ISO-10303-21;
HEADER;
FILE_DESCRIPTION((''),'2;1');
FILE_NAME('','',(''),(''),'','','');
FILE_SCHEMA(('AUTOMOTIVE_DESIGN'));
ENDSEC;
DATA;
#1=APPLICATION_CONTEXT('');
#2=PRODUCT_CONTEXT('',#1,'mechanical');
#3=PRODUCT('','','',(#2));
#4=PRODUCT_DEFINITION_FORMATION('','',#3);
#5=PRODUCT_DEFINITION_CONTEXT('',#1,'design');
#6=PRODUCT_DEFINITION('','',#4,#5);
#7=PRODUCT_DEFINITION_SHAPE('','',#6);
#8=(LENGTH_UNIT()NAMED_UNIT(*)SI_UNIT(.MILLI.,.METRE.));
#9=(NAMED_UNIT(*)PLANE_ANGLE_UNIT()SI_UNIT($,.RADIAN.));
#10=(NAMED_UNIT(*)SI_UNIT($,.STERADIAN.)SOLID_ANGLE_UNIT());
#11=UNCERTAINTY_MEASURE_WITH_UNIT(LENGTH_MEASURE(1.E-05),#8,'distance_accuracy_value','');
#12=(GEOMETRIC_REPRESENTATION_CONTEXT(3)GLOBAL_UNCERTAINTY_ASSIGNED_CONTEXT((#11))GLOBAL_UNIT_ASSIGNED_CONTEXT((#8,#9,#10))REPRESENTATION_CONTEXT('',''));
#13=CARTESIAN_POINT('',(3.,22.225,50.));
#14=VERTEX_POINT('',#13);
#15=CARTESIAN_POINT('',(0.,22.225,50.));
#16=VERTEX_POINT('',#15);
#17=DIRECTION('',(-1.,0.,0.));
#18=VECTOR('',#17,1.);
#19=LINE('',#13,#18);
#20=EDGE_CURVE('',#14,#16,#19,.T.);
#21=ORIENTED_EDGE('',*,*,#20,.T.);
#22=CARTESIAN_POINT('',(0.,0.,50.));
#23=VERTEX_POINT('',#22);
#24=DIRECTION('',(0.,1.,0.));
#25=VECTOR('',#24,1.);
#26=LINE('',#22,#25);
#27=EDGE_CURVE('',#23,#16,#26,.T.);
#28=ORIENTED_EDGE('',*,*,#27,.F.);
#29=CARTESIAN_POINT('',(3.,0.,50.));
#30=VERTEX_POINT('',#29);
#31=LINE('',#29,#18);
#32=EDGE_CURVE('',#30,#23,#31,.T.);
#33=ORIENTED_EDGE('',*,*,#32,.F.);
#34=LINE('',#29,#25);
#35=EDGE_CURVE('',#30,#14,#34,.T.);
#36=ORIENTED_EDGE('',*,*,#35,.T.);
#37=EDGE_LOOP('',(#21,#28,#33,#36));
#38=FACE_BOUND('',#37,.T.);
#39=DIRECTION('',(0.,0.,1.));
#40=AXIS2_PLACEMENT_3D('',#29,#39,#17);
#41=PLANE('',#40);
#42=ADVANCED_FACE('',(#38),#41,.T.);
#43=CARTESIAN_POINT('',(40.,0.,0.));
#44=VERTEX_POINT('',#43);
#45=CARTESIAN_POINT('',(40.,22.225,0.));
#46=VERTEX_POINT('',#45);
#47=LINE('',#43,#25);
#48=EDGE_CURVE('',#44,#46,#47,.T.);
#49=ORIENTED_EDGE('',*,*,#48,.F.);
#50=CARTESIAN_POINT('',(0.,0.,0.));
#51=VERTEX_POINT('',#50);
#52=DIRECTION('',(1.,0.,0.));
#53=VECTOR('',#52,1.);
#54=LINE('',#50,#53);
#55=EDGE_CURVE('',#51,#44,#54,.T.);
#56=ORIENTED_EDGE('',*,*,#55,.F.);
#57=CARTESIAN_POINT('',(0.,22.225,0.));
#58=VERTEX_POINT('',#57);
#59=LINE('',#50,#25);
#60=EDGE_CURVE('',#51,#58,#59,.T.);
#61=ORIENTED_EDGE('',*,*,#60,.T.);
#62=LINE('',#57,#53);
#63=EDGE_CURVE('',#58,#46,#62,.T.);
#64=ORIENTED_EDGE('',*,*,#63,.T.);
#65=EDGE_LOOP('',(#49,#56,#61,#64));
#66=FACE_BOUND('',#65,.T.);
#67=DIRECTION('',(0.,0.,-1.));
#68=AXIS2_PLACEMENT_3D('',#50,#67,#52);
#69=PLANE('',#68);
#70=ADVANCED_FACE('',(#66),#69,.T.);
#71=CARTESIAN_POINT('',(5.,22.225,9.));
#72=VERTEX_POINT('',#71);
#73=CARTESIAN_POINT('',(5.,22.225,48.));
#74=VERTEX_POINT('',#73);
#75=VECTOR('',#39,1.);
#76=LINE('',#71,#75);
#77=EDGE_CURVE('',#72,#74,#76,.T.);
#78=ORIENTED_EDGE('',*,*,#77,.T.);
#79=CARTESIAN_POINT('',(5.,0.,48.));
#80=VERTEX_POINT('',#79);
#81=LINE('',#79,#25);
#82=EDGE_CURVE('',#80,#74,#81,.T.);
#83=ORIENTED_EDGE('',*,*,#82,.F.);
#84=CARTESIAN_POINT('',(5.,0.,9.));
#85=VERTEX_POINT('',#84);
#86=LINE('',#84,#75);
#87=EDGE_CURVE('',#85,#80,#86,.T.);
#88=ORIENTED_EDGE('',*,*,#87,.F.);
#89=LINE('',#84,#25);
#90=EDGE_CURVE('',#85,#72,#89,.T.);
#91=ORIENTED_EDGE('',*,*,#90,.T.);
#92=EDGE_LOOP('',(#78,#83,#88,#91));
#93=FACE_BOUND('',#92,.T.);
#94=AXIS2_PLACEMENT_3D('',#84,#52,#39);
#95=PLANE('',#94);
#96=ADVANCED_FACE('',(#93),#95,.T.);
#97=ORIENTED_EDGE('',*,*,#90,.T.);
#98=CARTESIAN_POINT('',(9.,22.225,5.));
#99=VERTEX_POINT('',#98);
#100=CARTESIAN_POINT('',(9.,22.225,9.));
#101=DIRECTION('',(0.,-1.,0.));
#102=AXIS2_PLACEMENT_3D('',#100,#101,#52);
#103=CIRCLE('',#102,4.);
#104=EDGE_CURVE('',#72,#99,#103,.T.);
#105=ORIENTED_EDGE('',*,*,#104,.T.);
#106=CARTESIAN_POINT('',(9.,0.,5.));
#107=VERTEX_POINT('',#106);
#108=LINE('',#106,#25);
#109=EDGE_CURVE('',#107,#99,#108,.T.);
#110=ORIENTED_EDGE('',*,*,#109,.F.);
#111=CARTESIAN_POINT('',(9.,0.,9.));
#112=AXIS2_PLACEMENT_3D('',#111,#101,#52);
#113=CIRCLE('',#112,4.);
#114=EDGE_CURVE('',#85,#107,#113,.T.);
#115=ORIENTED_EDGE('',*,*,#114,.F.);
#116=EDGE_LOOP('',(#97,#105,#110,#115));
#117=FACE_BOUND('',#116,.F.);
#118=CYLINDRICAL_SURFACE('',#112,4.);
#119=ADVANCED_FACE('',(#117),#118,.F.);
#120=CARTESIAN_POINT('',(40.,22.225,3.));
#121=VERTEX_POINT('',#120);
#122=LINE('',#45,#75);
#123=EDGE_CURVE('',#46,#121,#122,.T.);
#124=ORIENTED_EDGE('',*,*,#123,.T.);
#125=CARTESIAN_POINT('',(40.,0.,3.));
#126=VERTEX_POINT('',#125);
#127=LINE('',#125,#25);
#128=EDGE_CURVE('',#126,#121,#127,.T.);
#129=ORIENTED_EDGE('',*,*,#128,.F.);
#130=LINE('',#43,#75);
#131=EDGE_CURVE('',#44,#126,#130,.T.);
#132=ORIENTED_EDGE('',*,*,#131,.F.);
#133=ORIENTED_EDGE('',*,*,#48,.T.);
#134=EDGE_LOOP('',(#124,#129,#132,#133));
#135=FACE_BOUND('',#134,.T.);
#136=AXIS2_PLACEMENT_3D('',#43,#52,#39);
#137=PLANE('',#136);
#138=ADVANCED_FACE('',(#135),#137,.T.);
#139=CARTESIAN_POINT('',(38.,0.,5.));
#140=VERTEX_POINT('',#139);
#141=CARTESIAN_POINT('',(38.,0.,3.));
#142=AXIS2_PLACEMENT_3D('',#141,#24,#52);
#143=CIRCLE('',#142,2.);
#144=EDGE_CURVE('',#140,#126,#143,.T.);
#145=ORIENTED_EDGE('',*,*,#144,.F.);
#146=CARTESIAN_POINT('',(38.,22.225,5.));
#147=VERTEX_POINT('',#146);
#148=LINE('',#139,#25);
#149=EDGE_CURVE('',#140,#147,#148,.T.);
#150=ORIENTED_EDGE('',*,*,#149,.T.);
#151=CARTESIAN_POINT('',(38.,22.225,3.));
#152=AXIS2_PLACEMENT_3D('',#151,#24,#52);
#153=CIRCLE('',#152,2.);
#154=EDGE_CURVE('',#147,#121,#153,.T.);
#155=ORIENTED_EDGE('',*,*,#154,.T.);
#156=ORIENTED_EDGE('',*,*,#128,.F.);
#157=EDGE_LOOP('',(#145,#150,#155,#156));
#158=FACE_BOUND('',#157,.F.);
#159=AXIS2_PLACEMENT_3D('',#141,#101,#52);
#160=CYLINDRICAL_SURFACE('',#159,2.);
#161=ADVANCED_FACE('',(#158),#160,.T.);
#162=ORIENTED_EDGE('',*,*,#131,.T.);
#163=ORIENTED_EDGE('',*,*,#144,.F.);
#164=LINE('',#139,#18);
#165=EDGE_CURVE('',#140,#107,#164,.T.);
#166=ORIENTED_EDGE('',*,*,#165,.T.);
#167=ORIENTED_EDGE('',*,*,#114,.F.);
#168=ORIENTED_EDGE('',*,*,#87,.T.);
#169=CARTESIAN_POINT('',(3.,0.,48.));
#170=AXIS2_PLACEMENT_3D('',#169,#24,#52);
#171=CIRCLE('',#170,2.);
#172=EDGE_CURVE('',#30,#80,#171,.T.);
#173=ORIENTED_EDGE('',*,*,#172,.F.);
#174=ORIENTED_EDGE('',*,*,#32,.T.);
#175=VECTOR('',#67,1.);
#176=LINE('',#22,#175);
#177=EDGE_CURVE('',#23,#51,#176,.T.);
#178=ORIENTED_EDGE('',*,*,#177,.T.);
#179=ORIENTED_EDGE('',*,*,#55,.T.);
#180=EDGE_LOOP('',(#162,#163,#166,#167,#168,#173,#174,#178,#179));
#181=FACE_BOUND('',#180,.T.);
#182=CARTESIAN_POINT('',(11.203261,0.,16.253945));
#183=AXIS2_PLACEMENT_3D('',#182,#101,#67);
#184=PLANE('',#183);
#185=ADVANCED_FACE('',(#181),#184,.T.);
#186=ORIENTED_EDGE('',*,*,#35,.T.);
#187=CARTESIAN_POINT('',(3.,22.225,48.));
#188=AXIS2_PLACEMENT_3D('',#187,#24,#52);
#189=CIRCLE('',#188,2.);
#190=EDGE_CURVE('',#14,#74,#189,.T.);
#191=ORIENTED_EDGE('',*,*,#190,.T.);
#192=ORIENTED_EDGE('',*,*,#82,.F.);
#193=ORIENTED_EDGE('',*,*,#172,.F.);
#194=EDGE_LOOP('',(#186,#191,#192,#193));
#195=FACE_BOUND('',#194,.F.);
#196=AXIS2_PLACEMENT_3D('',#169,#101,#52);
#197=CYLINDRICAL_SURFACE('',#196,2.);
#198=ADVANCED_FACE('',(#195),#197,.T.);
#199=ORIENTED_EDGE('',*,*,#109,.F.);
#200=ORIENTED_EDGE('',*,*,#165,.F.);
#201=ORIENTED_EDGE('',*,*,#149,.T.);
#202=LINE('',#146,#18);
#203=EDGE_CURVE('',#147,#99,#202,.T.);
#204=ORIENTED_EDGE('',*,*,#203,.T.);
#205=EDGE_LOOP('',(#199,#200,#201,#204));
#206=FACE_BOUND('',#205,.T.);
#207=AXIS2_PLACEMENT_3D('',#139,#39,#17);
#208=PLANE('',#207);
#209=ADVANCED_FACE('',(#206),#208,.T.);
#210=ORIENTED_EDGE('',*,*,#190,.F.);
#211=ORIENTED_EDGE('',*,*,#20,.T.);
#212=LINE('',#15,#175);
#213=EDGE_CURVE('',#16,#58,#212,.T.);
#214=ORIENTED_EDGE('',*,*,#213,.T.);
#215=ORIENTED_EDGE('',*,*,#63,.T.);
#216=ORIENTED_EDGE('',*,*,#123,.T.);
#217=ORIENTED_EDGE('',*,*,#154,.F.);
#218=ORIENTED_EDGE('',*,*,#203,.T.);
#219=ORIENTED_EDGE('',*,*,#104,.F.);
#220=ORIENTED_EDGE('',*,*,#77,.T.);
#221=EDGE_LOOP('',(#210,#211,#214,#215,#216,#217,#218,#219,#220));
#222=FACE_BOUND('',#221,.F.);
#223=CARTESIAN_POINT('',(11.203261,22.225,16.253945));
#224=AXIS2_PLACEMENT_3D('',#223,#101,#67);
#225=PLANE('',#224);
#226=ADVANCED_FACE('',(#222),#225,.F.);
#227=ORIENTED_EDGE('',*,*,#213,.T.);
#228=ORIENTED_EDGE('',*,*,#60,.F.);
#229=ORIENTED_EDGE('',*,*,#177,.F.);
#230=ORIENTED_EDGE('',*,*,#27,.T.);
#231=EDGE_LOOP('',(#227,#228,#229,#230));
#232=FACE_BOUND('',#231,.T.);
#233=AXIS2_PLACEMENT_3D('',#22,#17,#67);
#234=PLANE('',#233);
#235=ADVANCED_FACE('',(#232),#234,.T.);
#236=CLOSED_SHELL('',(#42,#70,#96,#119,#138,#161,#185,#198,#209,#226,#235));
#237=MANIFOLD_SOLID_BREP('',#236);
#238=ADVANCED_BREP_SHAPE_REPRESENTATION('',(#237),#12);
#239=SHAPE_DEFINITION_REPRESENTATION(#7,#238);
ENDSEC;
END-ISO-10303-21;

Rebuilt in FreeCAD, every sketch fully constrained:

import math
import FreeCAD as App
import Part
import Sketcher
from FreeCAD import Vector

doc = App.newDocument("Part")
body = doc.addObject("PartDesign::Body", "Body")

sketch1 = body.newObject("Sketcher::SketchObject", "Sketch")
sketch1.AttachmentSupport = (doc.getObject("XZ_Plane"), [""])
sketch1.MapMode = "FlatFace"
sketch1.addGeometry([
    Part.LineSegment(Vector(0, 0, 0), Vector(40, 0, 0)),
    Part.LineSegment(Vector(40, 0, 0), Vector(40, 3, 0)),
    Part.ArcOfCircle(Part.Circle(Vector(38, 3, 0), Vector(0, 0, 1), 2), math.radians(0), math.radians(90)),
    Part.LineSegment(Vector(38, 5, 0), Vector(9, 5, 0)),
    Part.ArcOfCircle(Part.Circle(Vector(9, 9, 0), Vector(0, 0, 1), 4), math.radians(180), math.radians(270)),
    Part.LineSegment(Vector(5, 9, 0), Vector(5, 48, 0)),
    Part.ArcOfCircle(Part.Circle(Vector(3, 48, 0), Vector(0, 0, 1), 2), math.radians(0), math.radians(90)),
    Part.LineSegment(Vector(3, 50, 0), Vector(0, 50, 0)),
    Part.LineSegment(Vector(0, 50, 0), Vector(0, 0, 0)),
], False)
sketch1.addConstraint([
    Sketcher.Constraint("Coincident", 0, 2, 1, 1),
    Sketcher.Constraint("Tangent", 1, 2, 2, 1),
    Sketcher.Constraint("Tangent", 2, 2, 3, 1),
    Sketcher.Constraint("Tangent", 3, 2, 4, 2),
    Sketcher.Constraint("Tangent", 4, 1, 5, 1),
    Sketcher.Constraint("Tangent", 5, 2, 6, 1),
    Sketcher.Constraint("Tangent", 6, 2, 7, 1),
    Sketcher.Constraint("Coincident", 7, 2, 8, 1),
    Sketcher.Constraint("Coincident", 8, 2, 0, 1),
    Sketcher.Constraint("Horizontal", 0),
    Sketcher.Constraint("Vertical", 1),
    Sketcher.Constraint("Horizontal", 3),
    Sketcher.Constraint("Vertical", 5),
    Sketcher.Constraint("Horizontal", 7),
    Sketcher.Constraint("Vertical", 8),
    Sketcher.Constraint("Coincident", 8, 2, -1, 1),
    Sketcher.Constraint("Equal", 2, 6),
    Sketcher.Constraint("Equal", 7, 1),
    Sketcher.Constraint("Radius", 2, 2.0),
    Sketcher.Constraint("Radius", 4, 4.0),
    Sketcher.Constraint("DistanceX", 0, 1, 0, 2, 40.0),
    Sketcher.Constraint("DistanceX", 3, 2, 3, 1, 29.0),
    Sketcher.Constraint("DistanceY", 5, 1, 5, 2, 39.0),
])
pad1 = body.newObject("PartDesign::Pad", "Pad")
pad1.Profile = sketch1
pad1.Length = 22.225
pad1.Reversed = True

doc.recompute()
